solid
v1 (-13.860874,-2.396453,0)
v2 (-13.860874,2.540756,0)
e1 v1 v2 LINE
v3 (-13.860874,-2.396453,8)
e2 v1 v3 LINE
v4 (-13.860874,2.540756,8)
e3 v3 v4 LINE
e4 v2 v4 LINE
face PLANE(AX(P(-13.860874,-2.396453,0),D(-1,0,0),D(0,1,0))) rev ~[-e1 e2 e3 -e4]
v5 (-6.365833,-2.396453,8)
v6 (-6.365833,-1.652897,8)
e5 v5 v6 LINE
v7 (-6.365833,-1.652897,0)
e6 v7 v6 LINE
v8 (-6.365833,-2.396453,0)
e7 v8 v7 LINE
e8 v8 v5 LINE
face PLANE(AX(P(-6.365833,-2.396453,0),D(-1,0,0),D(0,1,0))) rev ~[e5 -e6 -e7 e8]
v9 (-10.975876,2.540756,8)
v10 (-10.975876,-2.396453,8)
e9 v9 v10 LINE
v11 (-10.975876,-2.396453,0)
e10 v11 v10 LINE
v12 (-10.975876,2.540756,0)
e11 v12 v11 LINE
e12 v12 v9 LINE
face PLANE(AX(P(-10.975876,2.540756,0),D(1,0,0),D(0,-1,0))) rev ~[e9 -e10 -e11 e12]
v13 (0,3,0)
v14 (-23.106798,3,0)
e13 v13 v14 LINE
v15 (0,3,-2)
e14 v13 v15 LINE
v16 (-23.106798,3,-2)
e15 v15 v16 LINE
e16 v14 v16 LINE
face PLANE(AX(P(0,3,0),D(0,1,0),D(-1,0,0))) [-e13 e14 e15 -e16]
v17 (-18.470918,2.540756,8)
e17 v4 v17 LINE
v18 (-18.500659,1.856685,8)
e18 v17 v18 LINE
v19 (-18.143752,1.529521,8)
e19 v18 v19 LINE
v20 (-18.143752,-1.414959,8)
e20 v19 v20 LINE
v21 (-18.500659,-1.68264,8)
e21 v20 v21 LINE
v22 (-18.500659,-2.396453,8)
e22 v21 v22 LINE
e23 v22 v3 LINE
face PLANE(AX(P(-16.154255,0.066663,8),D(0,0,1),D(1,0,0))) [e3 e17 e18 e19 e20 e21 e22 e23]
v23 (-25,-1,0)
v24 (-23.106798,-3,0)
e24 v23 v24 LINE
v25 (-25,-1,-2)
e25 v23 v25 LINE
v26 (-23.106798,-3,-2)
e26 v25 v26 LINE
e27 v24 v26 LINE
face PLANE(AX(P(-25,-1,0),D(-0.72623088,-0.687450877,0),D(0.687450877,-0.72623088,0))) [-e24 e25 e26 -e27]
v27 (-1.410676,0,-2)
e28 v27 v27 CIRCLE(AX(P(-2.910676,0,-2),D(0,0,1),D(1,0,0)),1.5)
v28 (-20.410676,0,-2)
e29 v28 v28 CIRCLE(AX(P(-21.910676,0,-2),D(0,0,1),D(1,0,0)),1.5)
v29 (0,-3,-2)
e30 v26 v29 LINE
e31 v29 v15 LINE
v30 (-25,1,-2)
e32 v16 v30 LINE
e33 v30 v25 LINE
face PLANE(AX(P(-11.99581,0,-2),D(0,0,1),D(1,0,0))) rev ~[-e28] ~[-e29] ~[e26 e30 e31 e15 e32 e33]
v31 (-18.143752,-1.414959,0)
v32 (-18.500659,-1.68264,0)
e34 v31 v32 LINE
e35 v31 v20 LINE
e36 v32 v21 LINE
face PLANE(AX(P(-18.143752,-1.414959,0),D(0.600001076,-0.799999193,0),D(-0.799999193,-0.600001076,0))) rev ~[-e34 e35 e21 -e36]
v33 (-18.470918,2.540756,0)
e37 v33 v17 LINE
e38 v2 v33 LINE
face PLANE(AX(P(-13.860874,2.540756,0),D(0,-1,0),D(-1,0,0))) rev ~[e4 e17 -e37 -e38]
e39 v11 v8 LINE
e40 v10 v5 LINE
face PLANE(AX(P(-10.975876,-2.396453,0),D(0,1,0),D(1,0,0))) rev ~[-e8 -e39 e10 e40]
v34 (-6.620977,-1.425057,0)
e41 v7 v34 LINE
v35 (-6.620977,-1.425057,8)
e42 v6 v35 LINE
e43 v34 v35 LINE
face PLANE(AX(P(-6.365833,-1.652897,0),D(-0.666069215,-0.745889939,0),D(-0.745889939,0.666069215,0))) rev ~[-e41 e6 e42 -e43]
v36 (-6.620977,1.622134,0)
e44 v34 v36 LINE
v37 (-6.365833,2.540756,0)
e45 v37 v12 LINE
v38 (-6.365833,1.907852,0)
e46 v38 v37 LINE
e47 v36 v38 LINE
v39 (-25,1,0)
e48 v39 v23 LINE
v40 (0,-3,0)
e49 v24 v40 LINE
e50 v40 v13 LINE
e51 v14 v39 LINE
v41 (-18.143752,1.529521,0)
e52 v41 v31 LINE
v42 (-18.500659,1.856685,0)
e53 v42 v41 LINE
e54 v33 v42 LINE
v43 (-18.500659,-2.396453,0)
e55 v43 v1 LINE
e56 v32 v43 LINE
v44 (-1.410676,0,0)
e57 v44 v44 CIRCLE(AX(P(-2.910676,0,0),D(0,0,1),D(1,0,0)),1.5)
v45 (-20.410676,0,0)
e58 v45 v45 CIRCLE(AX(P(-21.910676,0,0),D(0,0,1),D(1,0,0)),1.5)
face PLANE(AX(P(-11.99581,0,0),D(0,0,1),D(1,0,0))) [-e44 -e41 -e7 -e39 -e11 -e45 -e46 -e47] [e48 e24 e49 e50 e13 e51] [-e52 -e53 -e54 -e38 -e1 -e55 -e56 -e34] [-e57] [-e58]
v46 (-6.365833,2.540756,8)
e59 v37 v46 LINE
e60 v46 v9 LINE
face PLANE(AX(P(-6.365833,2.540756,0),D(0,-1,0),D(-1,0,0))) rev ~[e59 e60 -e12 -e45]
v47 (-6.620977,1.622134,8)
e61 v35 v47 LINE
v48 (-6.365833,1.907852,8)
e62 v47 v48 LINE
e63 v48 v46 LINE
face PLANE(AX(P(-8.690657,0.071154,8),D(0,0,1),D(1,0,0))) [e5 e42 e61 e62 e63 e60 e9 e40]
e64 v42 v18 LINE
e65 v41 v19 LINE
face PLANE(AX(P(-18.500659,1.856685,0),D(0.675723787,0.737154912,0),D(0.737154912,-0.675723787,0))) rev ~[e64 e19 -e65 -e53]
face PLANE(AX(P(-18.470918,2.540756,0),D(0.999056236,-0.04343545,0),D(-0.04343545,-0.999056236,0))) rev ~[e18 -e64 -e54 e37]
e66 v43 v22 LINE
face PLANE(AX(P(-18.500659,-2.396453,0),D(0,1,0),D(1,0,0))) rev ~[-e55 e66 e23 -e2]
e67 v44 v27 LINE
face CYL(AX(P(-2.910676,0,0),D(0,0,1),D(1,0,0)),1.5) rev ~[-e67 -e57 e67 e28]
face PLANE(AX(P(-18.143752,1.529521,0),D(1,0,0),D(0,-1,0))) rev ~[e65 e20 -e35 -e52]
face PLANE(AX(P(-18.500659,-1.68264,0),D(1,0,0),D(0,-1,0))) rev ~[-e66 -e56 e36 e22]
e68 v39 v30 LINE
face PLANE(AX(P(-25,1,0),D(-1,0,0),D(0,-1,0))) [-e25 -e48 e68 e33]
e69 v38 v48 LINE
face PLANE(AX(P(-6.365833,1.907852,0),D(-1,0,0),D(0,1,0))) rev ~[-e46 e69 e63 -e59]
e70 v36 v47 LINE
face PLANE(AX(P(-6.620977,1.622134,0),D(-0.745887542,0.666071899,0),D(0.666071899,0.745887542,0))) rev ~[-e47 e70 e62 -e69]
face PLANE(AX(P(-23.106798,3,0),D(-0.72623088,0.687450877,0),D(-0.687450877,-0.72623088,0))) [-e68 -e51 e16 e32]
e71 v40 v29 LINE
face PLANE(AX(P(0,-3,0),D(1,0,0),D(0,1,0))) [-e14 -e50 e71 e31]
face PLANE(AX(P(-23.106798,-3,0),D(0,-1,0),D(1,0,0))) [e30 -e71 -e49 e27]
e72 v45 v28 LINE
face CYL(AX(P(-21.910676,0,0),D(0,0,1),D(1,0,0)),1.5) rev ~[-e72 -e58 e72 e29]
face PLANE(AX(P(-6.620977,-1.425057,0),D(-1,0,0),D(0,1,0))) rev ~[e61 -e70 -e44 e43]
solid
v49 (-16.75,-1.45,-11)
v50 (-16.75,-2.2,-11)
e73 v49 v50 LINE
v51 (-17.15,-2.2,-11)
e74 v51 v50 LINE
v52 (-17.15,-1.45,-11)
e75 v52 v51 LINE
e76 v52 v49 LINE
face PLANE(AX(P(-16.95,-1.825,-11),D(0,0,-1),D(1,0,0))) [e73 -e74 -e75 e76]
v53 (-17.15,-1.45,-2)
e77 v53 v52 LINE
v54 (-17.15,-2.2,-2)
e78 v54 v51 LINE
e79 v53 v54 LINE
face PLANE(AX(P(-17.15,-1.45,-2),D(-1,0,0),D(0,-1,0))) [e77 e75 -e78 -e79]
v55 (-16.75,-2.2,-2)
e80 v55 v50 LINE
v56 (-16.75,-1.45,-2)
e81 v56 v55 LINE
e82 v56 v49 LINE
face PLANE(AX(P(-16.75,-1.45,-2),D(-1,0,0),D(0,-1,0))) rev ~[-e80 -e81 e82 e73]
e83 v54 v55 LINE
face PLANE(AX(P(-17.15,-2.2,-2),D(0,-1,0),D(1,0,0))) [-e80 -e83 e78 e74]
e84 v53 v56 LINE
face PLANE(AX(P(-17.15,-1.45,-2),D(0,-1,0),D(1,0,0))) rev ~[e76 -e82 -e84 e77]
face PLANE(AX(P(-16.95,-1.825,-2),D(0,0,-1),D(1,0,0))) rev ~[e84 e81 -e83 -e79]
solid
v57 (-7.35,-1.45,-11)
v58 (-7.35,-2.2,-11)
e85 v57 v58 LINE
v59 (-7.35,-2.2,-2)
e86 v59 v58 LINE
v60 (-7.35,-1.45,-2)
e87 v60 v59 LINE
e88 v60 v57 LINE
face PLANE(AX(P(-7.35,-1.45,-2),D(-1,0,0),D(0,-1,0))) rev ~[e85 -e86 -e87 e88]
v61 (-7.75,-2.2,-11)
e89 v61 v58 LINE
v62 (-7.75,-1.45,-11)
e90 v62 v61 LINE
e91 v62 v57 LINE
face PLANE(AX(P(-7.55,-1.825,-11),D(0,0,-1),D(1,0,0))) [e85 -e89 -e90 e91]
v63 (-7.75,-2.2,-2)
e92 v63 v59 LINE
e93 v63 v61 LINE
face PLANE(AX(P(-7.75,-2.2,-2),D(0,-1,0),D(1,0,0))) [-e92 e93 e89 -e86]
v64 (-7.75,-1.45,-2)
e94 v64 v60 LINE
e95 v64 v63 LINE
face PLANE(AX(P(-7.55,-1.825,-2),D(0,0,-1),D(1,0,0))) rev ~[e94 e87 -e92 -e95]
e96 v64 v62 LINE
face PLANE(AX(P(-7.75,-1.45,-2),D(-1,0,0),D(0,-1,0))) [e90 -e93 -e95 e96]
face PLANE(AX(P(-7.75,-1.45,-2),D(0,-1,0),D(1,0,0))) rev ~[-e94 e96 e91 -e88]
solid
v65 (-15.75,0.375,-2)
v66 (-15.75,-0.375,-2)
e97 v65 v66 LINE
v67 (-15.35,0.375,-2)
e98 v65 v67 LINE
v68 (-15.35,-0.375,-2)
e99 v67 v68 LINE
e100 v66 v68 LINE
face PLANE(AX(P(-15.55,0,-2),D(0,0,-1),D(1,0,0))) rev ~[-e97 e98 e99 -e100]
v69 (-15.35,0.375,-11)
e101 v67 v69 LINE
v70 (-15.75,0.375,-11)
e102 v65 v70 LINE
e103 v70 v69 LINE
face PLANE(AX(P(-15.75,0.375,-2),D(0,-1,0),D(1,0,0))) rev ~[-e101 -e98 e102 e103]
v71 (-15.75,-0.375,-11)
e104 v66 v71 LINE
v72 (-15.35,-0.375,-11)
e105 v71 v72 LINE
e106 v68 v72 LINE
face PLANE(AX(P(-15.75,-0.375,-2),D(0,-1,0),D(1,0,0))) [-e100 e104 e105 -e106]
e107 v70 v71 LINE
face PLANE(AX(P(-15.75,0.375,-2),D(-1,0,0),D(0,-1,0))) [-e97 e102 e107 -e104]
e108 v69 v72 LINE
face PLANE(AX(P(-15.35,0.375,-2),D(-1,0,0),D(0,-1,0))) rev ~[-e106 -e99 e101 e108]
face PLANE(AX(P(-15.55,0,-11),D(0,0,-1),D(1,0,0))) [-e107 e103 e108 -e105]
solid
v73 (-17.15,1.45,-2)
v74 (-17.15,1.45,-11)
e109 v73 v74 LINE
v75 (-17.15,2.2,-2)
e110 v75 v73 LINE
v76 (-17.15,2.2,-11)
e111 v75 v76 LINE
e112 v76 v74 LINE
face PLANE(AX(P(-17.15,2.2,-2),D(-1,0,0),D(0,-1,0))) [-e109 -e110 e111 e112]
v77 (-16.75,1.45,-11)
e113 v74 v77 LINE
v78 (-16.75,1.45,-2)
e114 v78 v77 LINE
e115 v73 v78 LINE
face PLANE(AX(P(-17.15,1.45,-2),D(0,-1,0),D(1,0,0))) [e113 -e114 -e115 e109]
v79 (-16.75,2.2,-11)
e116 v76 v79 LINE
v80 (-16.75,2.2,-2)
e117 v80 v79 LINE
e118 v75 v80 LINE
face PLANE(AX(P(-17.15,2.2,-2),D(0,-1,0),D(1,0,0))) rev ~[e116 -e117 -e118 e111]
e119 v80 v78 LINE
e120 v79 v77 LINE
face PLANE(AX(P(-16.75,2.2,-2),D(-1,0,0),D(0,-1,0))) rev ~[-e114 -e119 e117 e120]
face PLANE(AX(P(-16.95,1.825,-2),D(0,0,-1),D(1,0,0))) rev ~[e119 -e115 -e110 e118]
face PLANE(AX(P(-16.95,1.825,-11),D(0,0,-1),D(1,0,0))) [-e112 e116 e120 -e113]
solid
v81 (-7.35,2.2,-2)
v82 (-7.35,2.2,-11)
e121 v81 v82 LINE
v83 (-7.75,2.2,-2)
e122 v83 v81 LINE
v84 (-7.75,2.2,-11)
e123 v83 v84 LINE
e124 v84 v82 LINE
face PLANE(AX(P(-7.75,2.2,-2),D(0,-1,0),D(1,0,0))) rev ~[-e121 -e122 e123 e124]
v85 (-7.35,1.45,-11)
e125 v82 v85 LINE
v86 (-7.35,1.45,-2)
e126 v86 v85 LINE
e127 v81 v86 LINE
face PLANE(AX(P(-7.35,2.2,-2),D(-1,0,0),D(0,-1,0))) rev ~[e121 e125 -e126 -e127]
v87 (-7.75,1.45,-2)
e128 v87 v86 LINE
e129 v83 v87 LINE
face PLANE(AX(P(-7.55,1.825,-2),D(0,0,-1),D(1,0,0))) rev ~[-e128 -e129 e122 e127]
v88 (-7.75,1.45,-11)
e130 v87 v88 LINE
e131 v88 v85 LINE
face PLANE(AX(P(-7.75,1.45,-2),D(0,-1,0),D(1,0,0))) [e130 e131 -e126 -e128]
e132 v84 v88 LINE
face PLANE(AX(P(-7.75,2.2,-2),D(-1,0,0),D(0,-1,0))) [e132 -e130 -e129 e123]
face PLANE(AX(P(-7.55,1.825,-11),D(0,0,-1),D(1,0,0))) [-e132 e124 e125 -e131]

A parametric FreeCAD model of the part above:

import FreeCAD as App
import Part
import Sketcher

V = App.Vector


def add_polygon(sketch, points):
    """Adds a closed chain of lines whose ends are joined by coincident constraints."""
    first, n = sketch.GeometryCount, len(points)
    for a, b in zip(points, points[1:] + points[:1]):
        sketch.addGeometry(Part.LineSegment(App.Vector(*a, 0), App.Vector(*b, 0)), False)
    for i in range(n):
        sketch.addConstraint(Sketcher.Constraint("Coincident", first + i, 2, first + (i + 1) % n, 1))

doc = App.newDocument("Part")
params = doc.addObject("Spreadsheet::Sheet", "Params")
for row, (alias, value) in enumerate([
    ("sketch1_diameter", "3 mm"),
    ("sketch1_height", "2 mm"),
    ("sketch1_height2", "6 mm"),
    ("pad1_length", "2 mm"),
    ("pad2_length", "8 mm"),
    ("sketch3_width", "0.4 mm"),
    ("sketch3_height", "0.75 mm"),
    ("pad3_length", "9 mm"),
], start=1):
    params.set(f"A{row}", alias)
    params.set(f"B{row}", "=" + value)
    params.setAlias(f"B{row}", alias)

body = doc.addObject("PartDesign::Body", "Body")

# Sketch on XY plane
sketch1 = doc.addObject("Sketcher::SketchObject", "Sketch")
body.addObject(sketch1)
sketch1.AttachmentSupport = (doc.XY_Plane, [""])
sketch1.MapMode = "FlatFace"
add_polygon(sketch1, [(0, 3), (-23.1, 3), (-25, 1), (-25, -1), (-23.1, -3), (0, -3)])  # lines 0-5
sketch1.addGeometry(Part.Circle(V(-21.9, 0, 0), V(0, 0, 1), 1.5), False)  # 6
sketch1.addGeometry(Part.Circle(V(-2.9, 0, 0), V(0, 0, 1), 1.5), False)  # 7
sketch1.addConstraint(Sketcher.Constraint("Horizontal", 0))
sketch1.addConstraint(Sketcher.Constraint("Vertical", 2))
sketch1.addConstraint(Sketcher.Constraint("Horizontal", 4))
sketch1.addConstraint(Sketcher.Constraint("Vertical", 5))
sketch1.addConstraint(Sketcher.Constraint("Equal", 6, 7))
sketch1.addConstraint(Sketcher.Constraint("Symmetric", 4, 2, 5, 2, -1, 1))
sketch1.addConstraint(Sketcher.Constraint("PointOnObject", 6, 3, -1))
sketch1.addConstraint(Sketcher.Constraint("PointOnObject", 7, 3, -1))
sketch1.addConstraint(Sketcher.Constraint("Vertical", 0, 2, 3, 2))
sketch1.addConstraint(Sketcher.Constraint("Equal", 1, 3))
sketch1.addConstraint(Sketcher.Constraint("Diameter", 6, 3.0))
sketch1.addConstraint(Sketcher.Constraint("DistanceY", 2, 2, 2, 1, 2.0))
sketch1.addConstraint(Sketcher.Constraint("DistanceY", 5, 1, 5, 2, 6.0))
sketch1.addConstraint(Sketcher.Constraint("DistanceX", 1, 2, -1, 1, 25.0))
sketch1.addConstraint(Sketcher.Constraint("DistanceX", 6, 3, 7, 3, 19.0))
sketch1.addConstraint(Sketcher.Constraint("DistanceX", 0, 2, 0, 1, 23.106798))
sketch1.addConstraint(Sketcher.Constraint("DistanceX", 6, 3, -1, 1, 21.910676))
sketch1.setExpression("Constraints[16]", "Params.sketch1_diameter")
sketch1.setExpression("Constraints[17]", "Params.sketch1_height")
sketch1.setExpression("Constraints[18]", "Params.sketch1_height2")
pad1 = doc.addObject("PartDesign::Pad", "Pad")
body.addObject(pad1)
pad1.Profile = sketch1
pad1.setExpression("Length", "Params.pad1_length")
pad1.Reversed = True

# Sketch on XY plane
sketch2 = doc.addObject("Sketcher::SketchObject", "Sketch001")
body.addObject(sketch2)
sketch2.AttachmentSupport = (doc.XY_Plane, [""])
sketch2.MapMode = "FlatFace"
add_polygon(sketch2, [(-13.86, 2.54), (-18.47, 2.54), (-18.5, 1.86), (-18.14, 1.53), (-18.14, -1.41), (-18.5, -1.68), (-18.5, -2.4), (-13.86, -2.4)])  # lines 0-7
add_polygon(sketch2, [(-6.37, 2.54), (-10.98, 2.54), (-10.98, -2.4), (-6.37, -2.4), (-6.37, -1.65), (-6.62, -1.43), (-6.62, 1.62), (-6.37, 1.91)])  # lines 8-15
sketch2.addConstraint(Sketcher.Constraint("Horizontal", 0))
sketch2.addConstraint(Sketcher.Constraint("Vertical", 3))
sketch2.addConstraint(Sketcher.Constraint("Vertical", 5))
sketch2.addConstraint(Sketcher.Constraint("Horizontal", 6))
sketch2.addConstraint(Sketcher.Constraint("Vertical", 7))
sketch2.addConstraint(Sketcher.Constraint("Horizontal", 8))
sketch2.addConstraint(Sketcher.Constraint("Vertical", 9))
sketch2.addConstraint(Sketcher.Constraint("Horizontal", 10))
sketch2.addConstraint(Sketcher.Constraint("Vertical", 11))
sketch2.addConstraint(Sketcher.Constraint("Vertical", 13))
sketch2.addConstraint(Sketcher.Constraint("Vertical", 15))
sketch2.addConstraint(Sketcher.Constraint("Horizontal", 7, 2, 8, 2))
sketch2.addConstraint(Sketcher.Constraint("Horizontal", 6, 2, 9, 2))
sketch2.addConstraint(Sketcher.Constraint("Vertical", 1, 2, 4, 2))
sketch2.addConstraint(Sketcher.Constraint("Vertical", 11, 2, 14, 2))
sketch2.addConstraint(Sketcher.Constraint("Equal", 0, 8))
sketch2.addConstraint(Sketcher.Constraint("DistanceX", 7, 2, 8, 2, 2.884998))
sketch2.addConstraint(Sketcher.Constraint("DistanceY", 3, 2, 3, 1, 2.94448))
sketch2.addConstraint(Sketcher.Constraint("DistanceY", 7, 1, 7, 2, 4.937209))
sketch2.addConstraint(Sketcher.Constraint("DistanceY", 13, 1, 13, 2, 3.047191))
sketch2.addConstraint(Sketcher.Constraint("DistanceX", 9, 2, 12, 2, 4.354899))
sketch2.addConstraint(Sketcher.Constraint("Distance", 2, 0.484168))
sketch2.addConstraint(Sketcher.Constraint("DistanceX", 0, 2, 0, 1, 4.610044))
sketch2.addConstraint(Sketcher.Constraint("DistanceX", 6, 1, 6, 2, 4.639785))
sketch2.addConstraint(Sketcher.Constraint("DistanceY", 5, 2, 5, 1, 0.713813))
sketch2.addConstraint(Sketcher.Constraint("DistanceY", 11, 1, 11, 2, 0.743556))
sketch2.addConstraint(Sketcher.Constraint("DistanceY", 15, 1, 15, 2, 0.632904))
sketch2.addConstraint(Sketcher.Constraint("DistanceX", 0, 2, -1, 1, 18.470918))
sketch2.addConstraint(Sketcher.Constraint("DistanceX", 2, 2, -1, 1, 18.143752))
sketch2.addConstraint(Sketcher.Constraint("DistanceY", -1, 1, 2, 2, 1.529521))
sketch2.addConstraint(Sketcher.Constraint("DistanceY", 4, 2, -1, 1, 1.68264))
sketch2.addConstraint(Sketcher.Constraint("DistanceY", 11, 2, 12, 2, 0.22784))
pad2 = doc.addObject("PartDesign::Pad", "Pad001")
body.addObject(pad2)
pad2.Profile = sketch2
pad2.setExpression("Length", "Params.pad2_length")
body2 = doc.addObject("PartDesign::Body", "Body001")
body2.AllowCompound = True

# Sketch on XY plane
sketch3 = doc.addObject("Sketcher::SketchObject", "Sketch002")
body2.addObject(sketch3)
sketch3.AttachmentSupport = (doc.getObject("XY_Plane001"), [""])
sketch3.MapMode = "FlatFace"
sketch3.AttachmentOffset = App.Placement(V(0, 0, -2), App.Rotation())
add_polygon(sketch3, [(-17.15, -2.2), (-17.15, -1.45), (-16.75, -1.45), (-16.75, -2.2)])  # lines 0-3
add_polygon(sketch3, [(-15.75, -0.38), (-15.75, 0.38), (-15.35, 0.38), (-15.35, -0.38)])  # lines 4-7
add_polygon(sketch3, [(-7.75, -2.2), (-7.75, -1.45), (-7.35, -1.45), (-7.35, -2.2)])  # lines 8-11
add_polygon(sketch3, [(-17.15, 1.45), (-17.15, 2.2), (-16.75, 2.2), (-16.75, 1.45)])  # lines 12-15
add_polygon(sketch3, [(-7.75, 1.45), (-7.75, 2.2), (-7.35, 2.2), (-7.35, 1.45)])  # lines 16-19
sketch3.addConstraint(Sketcher.Constraint("Vertical", 0))
sketch3.addConstraint(Sketcher.Constraint("Horizontal", 1))
sketch3.addConstraint(Sketcher.Constraint("Vertical", 2))
sketch3.addConstraint(Sketcher.Constraint("Horizontal", 3))
sketch3.addConstraint(Sketcher.Constraint("Vertical", 4))
sketch3.addConstraint(Sketcher.Constraint("Horizontal", 5))
sketch3.addConstraint(Sketcher.Constraint("Vertical", 6))
sketch3.addConstraint(Sketcher.Constraint("Horizontal", 7))
sketch3.addConstraint(Sketcher.Constraint("Vertical", 8))
sketch3.addConstraint(Sketcher.Constraint("Horizontal", 9))
sketch3.addConstraint(Sketcher.Constraint("Vertical", 10))
sketch3.addConstraint(Sketcher.Constraint("Horizontal", 11))
sketch3.addConstraint(Sketcher.Constraint("Vertical", 12))
sketch3.addConstraint(Sketcher.Constraint("Horizontal", 13))
sketch3.addConstraint(Sketcher.Constraint("Vertical", 14))
sketch3.addConstraint(Sketcher.Constraint("Horizontal", 15))
sketch3.addConstraint(Sketcher.Constraint("Vertical", 16))
sketch3.addConstraint(Sketcher.Constraint("Horizontal", 17))
sketch3.addConstraint(Sketcher.Constraint("Vertical", 18))
sketch3.addConstraint(Sketcher.Constraint("Horizontal", 19))
sketch3.addConstraint(Sketcher.Constraint("Symmetric", 3, 2, 12, 2, -1))
sketch3.addConstraint(Sketcher.Constraint("Symmetric", 1, 2, 14, 2, -1))
sketch3.addConstraint(Sketcher.Constraint("Symmetric", 11, 2, 16, 2, -1))
sketch3.addConstraint(Sketcher.Constraint("Symmetric", 9, 2, 18, 2, -1))
sketch3.addConstraint(Sketcher.Constraint("Horizontal", 1, 2, 8, 2))
sketch3.addConstraint(Sketcher.Constraint("Horizontal", 3, 2, 10, 2))
sketch3.addConstraint(Sketcher.Constraint("Equal", 3, 5))
sketch3.addConstraint(Sketcher.Constraint("Equal", 7, 9))
sketch3.addConstraint(Sketcher.Constraint("Equal", 2, 4))
sketch3.addConstraint(Sketcher.Constraint("DistanceX", 1, 1, 1, 2, 0.4))
sketch3.addConstraint(Sketcher.Constraint("DistanceX", 1, 2, 4, 2, 1.0))
sketch3.addConstraint(Sketcher.Constraint("DistanceX", 7, 2, 8, 2, 8.0))
sketch3.addConstraint(Sketcher.Constraint("DistanceY", 0, 1, 0, 2, 0.75))
sketch3.addConstraint(Sketcher.Constraint("DistanceY", 2, 2, -1, 1, 2.2))
sketch3.addConstraint(Sketcher.Constraint("DistanceX", 0, 2, -1, 1, 17.15))
sketch3.addConstraint(Sketcher.Constraint("DistanceY", -1, 1, 4, 2, 0.375))
sketch3.setExpression("Constraints[49]", "Params.sketch3_width")
sketch3.setExpression("Constraints[52]", "Params.sketch3_height")
pad3 = doc.addObject("PartDesign::Pad", "Pad002")
body2.addObject(pad3)
pad3.Profile = sketch3
pad3.setExpression("Length", "Params.pad3_length")
pad3.Reversed = True

doc.recompute()
